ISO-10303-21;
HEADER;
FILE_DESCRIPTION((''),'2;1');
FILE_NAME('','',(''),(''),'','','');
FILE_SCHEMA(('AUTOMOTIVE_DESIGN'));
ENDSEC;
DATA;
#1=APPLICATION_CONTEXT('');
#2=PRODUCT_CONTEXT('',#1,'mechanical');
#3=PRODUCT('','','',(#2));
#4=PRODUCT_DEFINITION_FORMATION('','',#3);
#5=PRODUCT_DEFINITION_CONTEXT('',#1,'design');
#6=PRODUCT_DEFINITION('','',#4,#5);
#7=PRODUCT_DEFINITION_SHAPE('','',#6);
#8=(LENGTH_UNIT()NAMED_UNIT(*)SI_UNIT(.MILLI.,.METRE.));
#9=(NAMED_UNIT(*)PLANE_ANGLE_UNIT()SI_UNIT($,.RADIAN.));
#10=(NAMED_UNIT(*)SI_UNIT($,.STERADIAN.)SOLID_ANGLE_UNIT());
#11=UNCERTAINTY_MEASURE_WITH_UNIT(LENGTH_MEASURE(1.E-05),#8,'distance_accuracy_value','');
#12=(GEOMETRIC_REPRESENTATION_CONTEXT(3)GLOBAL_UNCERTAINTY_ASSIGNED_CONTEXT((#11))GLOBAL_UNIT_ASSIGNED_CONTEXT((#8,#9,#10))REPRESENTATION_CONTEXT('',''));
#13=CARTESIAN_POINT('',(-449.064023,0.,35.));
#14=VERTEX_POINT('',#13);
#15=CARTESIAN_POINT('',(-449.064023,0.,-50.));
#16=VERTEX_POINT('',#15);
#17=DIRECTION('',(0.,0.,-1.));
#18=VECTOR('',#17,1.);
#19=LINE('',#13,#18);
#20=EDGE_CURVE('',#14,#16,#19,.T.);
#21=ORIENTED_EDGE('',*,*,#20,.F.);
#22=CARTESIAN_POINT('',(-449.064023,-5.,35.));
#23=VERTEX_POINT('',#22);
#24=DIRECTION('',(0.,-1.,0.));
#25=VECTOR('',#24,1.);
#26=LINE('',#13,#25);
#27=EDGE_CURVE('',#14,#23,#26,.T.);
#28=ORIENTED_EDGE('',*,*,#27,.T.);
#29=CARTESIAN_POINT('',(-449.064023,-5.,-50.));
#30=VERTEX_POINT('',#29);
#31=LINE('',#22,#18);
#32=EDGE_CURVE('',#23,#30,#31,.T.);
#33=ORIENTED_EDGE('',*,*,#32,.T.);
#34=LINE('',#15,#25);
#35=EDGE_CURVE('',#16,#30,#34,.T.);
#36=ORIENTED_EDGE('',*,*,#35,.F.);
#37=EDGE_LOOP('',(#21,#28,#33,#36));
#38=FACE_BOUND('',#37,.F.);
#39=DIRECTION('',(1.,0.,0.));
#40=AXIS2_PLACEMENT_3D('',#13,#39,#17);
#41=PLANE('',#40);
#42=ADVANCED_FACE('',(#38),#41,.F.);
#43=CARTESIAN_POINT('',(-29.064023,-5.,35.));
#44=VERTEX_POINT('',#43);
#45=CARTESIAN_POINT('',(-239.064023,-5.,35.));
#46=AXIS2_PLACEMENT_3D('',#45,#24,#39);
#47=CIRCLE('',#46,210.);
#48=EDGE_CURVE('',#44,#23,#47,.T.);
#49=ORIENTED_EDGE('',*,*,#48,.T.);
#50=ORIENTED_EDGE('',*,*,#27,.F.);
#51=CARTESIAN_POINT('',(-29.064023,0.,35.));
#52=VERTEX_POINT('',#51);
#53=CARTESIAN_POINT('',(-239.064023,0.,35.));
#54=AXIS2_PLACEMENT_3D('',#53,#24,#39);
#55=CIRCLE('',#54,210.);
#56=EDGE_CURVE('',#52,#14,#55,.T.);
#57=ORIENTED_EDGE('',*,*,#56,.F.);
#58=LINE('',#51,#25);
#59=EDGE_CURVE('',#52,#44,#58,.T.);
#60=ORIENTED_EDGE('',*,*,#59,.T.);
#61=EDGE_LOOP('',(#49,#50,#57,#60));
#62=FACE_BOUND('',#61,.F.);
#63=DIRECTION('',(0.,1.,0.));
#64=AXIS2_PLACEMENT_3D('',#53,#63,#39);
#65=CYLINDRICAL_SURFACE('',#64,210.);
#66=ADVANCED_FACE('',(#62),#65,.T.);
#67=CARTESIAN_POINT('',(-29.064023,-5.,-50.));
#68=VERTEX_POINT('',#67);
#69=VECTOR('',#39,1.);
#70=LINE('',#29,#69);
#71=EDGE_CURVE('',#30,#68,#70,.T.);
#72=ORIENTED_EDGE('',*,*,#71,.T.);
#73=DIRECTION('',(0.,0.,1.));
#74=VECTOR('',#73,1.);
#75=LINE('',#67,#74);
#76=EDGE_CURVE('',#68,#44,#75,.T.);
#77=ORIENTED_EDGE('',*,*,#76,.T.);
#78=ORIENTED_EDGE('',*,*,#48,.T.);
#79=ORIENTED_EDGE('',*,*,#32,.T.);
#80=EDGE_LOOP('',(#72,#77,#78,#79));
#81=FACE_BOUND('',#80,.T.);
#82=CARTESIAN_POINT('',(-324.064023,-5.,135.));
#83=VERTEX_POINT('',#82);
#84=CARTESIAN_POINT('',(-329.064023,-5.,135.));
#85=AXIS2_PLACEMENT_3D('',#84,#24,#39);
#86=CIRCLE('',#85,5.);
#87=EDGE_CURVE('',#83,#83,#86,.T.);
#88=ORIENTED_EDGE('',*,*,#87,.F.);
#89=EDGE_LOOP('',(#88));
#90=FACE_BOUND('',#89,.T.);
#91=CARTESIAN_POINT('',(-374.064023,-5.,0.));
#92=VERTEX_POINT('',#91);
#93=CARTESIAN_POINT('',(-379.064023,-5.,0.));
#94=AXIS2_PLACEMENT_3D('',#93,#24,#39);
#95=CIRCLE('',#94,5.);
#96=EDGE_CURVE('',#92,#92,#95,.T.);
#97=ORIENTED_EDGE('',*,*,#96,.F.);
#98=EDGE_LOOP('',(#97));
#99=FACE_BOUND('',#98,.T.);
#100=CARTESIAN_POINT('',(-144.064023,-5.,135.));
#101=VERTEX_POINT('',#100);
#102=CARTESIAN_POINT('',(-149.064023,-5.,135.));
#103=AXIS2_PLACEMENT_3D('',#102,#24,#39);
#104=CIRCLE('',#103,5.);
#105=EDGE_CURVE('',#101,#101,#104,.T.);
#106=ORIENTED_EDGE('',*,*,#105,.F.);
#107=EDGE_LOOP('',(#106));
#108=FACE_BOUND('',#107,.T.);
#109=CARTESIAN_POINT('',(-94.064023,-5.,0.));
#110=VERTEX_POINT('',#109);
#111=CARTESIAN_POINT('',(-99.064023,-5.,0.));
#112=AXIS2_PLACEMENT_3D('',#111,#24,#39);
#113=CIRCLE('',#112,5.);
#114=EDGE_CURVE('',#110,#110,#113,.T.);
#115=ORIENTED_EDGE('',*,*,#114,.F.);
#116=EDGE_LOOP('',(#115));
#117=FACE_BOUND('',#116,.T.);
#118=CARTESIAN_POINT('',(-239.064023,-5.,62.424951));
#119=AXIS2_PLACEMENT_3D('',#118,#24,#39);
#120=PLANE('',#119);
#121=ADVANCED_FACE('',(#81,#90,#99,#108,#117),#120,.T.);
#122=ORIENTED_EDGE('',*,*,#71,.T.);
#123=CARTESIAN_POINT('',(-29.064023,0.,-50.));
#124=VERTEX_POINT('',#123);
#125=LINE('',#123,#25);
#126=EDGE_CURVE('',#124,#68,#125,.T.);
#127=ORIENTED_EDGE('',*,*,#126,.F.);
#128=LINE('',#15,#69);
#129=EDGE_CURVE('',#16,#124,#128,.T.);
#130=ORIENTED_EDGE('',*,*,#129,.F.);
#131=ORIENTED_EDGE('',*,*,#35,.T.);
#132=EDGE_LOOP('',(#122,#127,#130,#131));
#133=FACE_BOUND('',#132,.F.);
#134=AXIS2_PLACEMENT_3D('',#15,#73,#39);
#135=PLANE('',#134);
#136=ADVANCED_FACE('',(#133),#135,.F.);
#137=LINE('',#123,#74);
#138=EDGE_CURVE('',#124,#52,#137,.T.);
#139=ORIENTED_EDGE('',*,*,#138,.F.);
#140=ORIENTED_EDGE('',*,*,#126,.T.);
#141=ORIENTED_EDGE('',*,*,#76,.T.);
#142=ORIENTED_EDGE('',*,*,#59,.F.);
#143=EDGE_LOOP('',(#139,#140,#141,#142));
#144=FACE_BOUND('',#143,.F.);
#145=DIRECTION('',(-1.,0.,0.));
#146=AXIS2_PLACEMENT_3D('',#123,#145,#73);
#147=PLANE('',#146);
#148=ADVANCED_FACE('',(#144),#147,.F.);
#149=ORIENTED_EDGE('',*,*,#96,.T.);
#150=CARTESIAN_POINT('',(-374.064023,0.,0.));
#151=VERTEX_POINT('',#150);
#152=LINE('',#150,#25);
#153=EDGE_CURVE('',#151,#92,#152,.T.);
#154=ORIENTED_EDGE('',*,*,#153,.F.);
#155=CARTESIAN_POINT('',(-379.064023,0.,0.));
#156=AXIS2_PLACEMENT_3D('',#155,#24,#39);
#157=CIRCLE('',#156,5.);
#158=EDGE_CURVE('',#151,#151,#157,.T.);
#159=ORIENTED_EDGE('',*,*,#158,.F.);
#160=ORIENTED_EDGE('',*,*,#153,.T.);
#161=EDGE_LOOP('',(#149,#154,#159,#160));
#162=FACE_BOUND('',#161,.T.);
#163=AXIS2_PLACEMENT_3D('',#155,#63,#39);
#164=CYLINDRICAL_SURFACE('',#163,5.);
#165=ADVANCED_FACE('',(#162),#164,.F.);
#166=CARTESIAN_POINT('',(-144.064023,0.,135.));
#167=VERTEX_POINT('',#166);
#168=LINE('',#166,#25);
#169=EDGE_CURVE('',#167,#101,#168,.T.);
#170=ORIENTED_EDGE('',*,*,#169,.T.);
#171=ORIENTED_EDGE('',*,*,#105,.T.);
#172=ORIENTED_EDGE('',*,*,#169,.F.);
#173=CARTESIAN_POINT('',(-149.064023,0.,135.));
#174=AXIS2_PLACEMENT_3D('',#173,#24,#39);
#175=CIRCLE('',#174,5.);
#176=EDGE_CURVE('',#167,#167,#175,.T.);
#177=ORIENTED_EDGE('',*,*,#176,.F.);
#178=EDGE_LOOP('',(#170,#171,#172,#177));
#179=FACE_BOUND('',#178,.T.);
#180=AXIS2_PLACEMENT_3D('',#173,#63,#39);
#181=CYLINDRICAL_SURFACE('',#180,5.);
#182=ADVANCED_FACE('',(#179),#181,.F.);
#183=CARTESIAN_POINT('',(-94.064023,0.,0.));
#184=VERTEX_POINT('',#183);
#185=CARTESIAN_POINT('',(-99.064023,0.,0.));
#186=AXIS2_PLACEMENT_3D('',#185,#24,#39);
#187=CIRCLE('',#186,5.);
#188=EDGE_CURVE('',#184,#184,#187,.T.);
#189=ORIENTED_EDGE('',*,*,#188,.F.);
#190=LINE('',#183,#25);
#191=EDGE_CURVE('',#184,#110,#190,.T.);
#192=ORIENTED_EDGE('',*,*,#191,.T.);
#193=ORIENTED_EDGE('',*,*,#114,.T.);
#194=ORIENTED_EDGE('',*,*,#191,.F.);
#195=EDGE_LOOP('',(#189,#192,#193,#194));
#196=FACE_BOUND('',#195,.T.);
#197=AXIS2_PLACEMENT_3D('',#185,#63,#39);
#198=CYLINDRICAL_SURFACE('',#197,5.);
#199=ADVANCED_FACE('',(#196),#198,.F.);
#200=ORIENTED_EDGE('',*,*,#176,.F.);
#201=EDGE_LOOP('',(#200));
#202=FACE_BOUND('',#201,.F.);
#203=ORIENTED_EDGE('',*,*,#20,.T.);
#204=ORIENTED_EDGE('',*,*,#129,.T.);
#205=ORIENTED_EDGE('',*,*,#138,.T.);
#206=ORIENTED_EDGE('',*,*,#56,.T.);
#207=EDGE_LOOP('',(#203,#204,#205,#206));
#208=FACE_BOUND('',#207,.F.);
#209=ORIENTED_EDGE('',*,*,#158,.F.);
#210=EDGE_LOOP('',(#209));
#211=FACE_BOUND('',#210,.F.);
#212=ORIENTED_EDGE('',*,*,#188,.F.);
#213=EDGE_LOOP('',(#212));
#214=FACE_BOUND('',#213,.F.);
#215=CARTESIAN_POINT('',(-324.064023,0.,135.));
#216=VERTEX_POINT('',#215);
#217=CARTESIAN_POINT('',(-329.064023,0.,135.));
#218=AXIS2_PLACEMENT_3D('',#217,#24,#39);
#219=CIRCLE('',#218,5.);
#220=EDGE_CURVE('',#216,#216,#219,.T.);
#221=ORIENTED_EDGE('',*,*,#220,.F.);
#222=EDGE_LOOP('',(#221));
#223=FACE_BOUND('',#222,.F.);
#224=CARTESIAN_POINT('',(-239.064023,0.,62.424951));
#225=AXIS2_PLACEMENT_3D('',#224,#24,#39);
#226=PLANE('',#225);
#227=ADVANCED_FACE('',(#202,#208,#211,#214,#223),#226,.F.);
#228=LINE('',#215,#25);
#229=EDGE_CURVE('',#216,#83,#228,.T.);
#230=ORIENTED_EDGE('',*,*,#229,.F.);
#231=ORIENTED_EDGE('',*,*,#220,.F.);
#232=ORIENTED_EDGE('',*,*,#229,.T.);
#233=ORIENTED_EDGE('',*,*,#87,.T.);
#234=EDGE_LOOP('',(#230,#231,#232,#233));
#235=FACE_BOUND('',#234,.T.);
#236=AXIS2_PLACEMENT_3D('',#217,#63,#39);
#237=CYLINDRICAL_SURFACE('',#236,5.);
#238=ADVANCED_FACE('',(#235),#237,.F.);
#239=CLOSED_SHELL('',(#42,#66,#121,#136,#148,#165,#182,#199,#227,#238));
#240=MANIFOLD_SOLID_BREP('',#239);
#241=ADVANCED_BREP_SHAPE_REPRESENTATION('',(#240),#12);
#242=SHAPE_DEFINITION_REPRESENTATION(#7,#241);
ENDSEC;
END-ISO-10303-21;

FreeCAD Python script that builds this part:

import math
import FreeCAD as App
import Part
import Sketcher

V = App.Vector
Q = App.Units.Quantity

doc = App.newDocument("Part")
body = doc.addObject("PartDesign::Body", "Body")

sketch1 = body.newObject("Sketcher::SketchObject", "Sketch")
sketch1.AttachmentSupport = (doc.getObject("XZ_Plane"), [""])
sketch1.MapMode = "FlatFace"
sketch1.addGeometry([
    Part.LineSegment(V(-29, -50, 0), V(-29, 35, 0)),
    Part.ArcOfCircle(Part.Circle(V(-239, 35, 0), V(0, 0, 1), 210), math.radians(0), math.radians(180)),
    Part.LineSegment(V(-449, 35, 0), V(-449, -50, 0)),
    Part.LineSegment(V(-449, -50, 0), V(-29, -50, 0)),
    Part.Circle(V(-379, 0, 0), V(0, 0, 1), 5),
    Part.Circle(V(-99, 0, 0), V(0, 0, 1), 5),
    Part.Circle(V(-329, 135, 0), V(0, 0, 1), 5),
    Part.Circle(V(-149, 135, 0), V(0, 0, 1), 5),
], False)
sketch1.addConstraint([
    Sketcher.Constraint("Tangent", 0, 2, 1, 1),
    Sketcher.Constraint("Tangent", 1, 2, 2, 1),
    Sketcher.Constraint("Coincident", 2, 2, 3, 1),
    Sketcher.Constraint("Coincident", 3, 2, 0, 1),
    Sketcher.Constraint("Vertical", 0),
    Sketcher.Constraint("Vertical", 2),
    Sketcher.Constraint("Horizontal", 3),
    Sketcher.Constraint("Equal", 4, 5),
    Sketcher.Constraint("Equal", 5, 6),
    Sketcher.Constraint("Equal", 6, 7),
    Sketcher.Constraint("PointOnObject", 4, 3, -1),
    Sketcher.Constraint("PointOnObject", 5, 3, -1),
    Sketcher.Constraint("Horizontal", 6, 3, 7, 3),
    Sketcher.Constraint("Diameter", 4, Q("10 mm")),
    Sketcher.Constraint("Radius", 1, Q("210 mm")),
    Sketcher.Constraint("DistanceY", 0, 1, 0, 2, Q("85 mm")),
    Sketcher.Constraint("DistanceY", -1, 1, 1, 3, Q("35 mm")),
    Sketcher.Constraint("DistanceY", -1, 1, 6, 3, Q("135 mm")),
    Sketcher.Constraint("DistanceX", 4, 3, 1, 3, Q("140 mm")),
    Sketcher.Constraint("DistanceX", 1, 3, 5, 3, Q("140 mm")),
    Sketcher.Constraint("DistanceX", 6, 3, 1, 3, Q("90 mm")),
    Sketcher.Constraint("DistanceX", 1, 3, 7, 3, Q("90 mm")),
    Sketcher.Constraint("DistanceX", 1, 3, -1, 1, Q("239.064023 mm")),
])
pad1 = body.newObject("PartDesign::Pad", "Pad")
pad1.Profile = sketch1
pad1.Length = 5

doc.recompute()
